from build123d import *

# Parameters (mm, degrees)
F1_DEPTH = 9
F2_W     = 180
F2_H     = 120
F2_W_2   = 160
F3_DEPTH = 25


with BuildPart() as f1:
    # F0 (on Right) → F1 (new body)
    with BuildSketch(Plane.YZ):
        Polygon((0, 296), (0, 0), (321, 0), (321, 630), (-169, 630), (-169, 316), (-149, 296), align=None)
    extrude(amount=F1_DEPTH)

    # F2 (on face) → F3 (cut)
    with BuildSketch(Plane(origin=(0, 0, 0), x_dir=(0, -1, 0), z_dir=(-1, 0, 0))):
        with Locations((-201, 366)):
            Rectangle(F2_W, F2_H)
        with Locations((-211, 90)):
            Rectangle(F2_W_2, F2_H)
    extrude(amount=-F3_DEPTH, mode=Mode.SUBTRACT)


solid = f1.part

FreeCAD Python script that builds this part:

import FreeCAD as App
import Part
import Sketcher

V = App.Vector
Q = App.Units.Quantity

doc = App.newDocument("Part")
body = doc.addObject("PartDesign::Body", "Body")

sketch1 = body.newObject("Sketcher::SketchObject", "Sketch")
sketch1.AttachmentSupport = (doc.getObject("YZ_Plane"), [""])
sketch1.MapMode = "FlatFace"
sketch1.addGeometry([
    Part.LineSegment(V(0, 296, 0), V(0, 0, 0)),
    Part.LineSegment(V(0, 0, 0), V(321, 0, 0)),
    Part.LineSegment(V(321, 0, 0), V(321, 630, 0)),
    Part.LineSegment(V(321, 630, 0), V(-169, 630, 0)),
    Part.LineSegment(V(-169, 630, 0), V(-169, 316, 0)),
    Part.LineSegment(V(-169, 316, 0), V(-149, 296, 0)),
    Part.LineSegment(V(-149, 296, 0), V(0, 296, 0)),
], False)
sketch1.addConstraint([
    Sketcher.Constraint("Coincident", 0, 2, 1, 1),
    Sketcher.Constraint("Coincident", 1, 2, 2, 1),
    Sketcher.Constraint("Coincident", 2, 2, 3, 1),
    Sketcher.Constraint("Coincident", 3, 2, 4, 1),
    Sketcher.Constraint("Coincident", 4, 2, 5, 1),
    Sketcher.Constraint("Coincident", 5, 2, 6, 1),
    Sketcher.Constraint("Coincident", 6, 2, 0, 1),
    Sketcher.Constraint("Vertical", 0),
    Sketcher.Constraint("Horizontal", 1),
    Sketcher.Constraint("Vertical", 2),
    Sketcher.Constraint("Horizontal", 3),
    Sketcher.Constraint("Vertical", 4),
    Sketcher.Constraint("Horizontal", 6),
    Sketcher.Constraint("Coincident", 0, 2, -1, 1),
    Sketcher.Constraint("DistanceX", 1, 1, 1, 2, Q("321 mm")),
    Sketcher.Constraint("DistanceX", 3, 2, 3, 1, Q("490 mm")),
    Sketcher.Constraint("DistanceX", 6, 1, 6, 2, Q("149 mm")),
    Sketcher.Constraint("DistanceY", 0, 2, 0, 1, Q("296 mm")),
    Sketcher.Constraint("DistanceY", 2, 1, 2, 2, Q("630 mm")),
    Sketcher.Constraint("DistanceY", 4, 2, 4, 1, Q("314 mm")),
])
pad1 = body.newObject("PartDesign::Pad", "Pad")
pad1.Profile = sketch1
pad1.Length = 9

sketch2 = body.newObject("Sketcher::SketchObject", "Sketch001")
sketch2.AttachmentSupport = (doc.getObject("YZ_Plane"), [""])
sketch2.MapMode = "FlatFace"
sketch2.addGeometry([
    Part.LineSegment(V(291, 426, 0), V(291, 306, 0)),
    Part.LineSegment(V(291, 306, 0), V(111, 306, 0)),
    Part.LineSegment(V(111, 306, 0), V(111, 426, 0)),
    Part.LineSegment(V(111, 426, 0), V(291, 426, 0)),
    Part.LineSegment(V(291, 150, 0), V(291, 30, 0)),
    Part.LineSegment(V(291, 30, 0), V(131, 30, 0)),
    Part.LineSegment(V(131, 30, 0), V(131, 150, 0)),
    Part.LineSegment(V(131, 150, 0), V(291, 150, 0)),
], False)
sketch2.addConstraint([
    Sketcher.Constraint("Coincident", 0, 2, 1, 1),
    Sketcher.Constraint("Coincident", 1, 2, 2, 1),
    Sketcher.Constraint("Coincident", 2, 2, 3, 1),
    Sketcher.Constraint("Coincident", 3, 2, 0, 1),
    Sketcher.Constraint("Coincident", 4, 2, 5, 1),
    Sketcher.Constraint("Coincident", 5, 2, 6, 1),
    Sketcher.Constraint("Coincident", 6, 2, 7, 1),
    Sketcher.Constraint("Coincident", 7, 2, 4, 1),
    Sketcher.Constraint("Vertical", 0),
    Sketcher.Constraint("Horizontal", 1),
    Sketcher.Constraint("Vertical", 2),
    Sketcher.Constraint("Horizontal", 3),
    Sketcher.Constraint("Vertical", 4),
    Sketcher.Constraint("Horizontal", 5),
    Sketcher.Constraint("Vertical", 6),
    Sketcher.Constraint("Horizontal", 7),
    Sketcher.Constraint("Vertical", 3, 2, 4, 2),
    Sketcher.Constraint("Equal", 2, 4),
    Sketcher.Constraint("DistanceX", 1, 2, 1, 1, Q("180 mm")),
    Sketcher.Constraint("DistanceX", 5, 2, 5, 1, Q("160 mm")),
    Sketcher.Constraint("DistanceY", 0, 2, 0, 1, Q("120 mm")),
    Sketcher.Constraint("DistanceX", -1, 1, 0, 2, Q("291 mm")),
    Sketcher.Constraint("DistanceY", -1, 1, 0, 2, Q("306 mm")),
    Sketcher.Constraint("DistanceY", -1, 1, 4, 2, Q("30 mm")),
])
pocket1 = body.newObject("PartDesign::Pocket", "Pocket")
pocket1.Profile = sketch2
pocket1.Length = 25
pocket1.Reversed = True

doc.recompute()
